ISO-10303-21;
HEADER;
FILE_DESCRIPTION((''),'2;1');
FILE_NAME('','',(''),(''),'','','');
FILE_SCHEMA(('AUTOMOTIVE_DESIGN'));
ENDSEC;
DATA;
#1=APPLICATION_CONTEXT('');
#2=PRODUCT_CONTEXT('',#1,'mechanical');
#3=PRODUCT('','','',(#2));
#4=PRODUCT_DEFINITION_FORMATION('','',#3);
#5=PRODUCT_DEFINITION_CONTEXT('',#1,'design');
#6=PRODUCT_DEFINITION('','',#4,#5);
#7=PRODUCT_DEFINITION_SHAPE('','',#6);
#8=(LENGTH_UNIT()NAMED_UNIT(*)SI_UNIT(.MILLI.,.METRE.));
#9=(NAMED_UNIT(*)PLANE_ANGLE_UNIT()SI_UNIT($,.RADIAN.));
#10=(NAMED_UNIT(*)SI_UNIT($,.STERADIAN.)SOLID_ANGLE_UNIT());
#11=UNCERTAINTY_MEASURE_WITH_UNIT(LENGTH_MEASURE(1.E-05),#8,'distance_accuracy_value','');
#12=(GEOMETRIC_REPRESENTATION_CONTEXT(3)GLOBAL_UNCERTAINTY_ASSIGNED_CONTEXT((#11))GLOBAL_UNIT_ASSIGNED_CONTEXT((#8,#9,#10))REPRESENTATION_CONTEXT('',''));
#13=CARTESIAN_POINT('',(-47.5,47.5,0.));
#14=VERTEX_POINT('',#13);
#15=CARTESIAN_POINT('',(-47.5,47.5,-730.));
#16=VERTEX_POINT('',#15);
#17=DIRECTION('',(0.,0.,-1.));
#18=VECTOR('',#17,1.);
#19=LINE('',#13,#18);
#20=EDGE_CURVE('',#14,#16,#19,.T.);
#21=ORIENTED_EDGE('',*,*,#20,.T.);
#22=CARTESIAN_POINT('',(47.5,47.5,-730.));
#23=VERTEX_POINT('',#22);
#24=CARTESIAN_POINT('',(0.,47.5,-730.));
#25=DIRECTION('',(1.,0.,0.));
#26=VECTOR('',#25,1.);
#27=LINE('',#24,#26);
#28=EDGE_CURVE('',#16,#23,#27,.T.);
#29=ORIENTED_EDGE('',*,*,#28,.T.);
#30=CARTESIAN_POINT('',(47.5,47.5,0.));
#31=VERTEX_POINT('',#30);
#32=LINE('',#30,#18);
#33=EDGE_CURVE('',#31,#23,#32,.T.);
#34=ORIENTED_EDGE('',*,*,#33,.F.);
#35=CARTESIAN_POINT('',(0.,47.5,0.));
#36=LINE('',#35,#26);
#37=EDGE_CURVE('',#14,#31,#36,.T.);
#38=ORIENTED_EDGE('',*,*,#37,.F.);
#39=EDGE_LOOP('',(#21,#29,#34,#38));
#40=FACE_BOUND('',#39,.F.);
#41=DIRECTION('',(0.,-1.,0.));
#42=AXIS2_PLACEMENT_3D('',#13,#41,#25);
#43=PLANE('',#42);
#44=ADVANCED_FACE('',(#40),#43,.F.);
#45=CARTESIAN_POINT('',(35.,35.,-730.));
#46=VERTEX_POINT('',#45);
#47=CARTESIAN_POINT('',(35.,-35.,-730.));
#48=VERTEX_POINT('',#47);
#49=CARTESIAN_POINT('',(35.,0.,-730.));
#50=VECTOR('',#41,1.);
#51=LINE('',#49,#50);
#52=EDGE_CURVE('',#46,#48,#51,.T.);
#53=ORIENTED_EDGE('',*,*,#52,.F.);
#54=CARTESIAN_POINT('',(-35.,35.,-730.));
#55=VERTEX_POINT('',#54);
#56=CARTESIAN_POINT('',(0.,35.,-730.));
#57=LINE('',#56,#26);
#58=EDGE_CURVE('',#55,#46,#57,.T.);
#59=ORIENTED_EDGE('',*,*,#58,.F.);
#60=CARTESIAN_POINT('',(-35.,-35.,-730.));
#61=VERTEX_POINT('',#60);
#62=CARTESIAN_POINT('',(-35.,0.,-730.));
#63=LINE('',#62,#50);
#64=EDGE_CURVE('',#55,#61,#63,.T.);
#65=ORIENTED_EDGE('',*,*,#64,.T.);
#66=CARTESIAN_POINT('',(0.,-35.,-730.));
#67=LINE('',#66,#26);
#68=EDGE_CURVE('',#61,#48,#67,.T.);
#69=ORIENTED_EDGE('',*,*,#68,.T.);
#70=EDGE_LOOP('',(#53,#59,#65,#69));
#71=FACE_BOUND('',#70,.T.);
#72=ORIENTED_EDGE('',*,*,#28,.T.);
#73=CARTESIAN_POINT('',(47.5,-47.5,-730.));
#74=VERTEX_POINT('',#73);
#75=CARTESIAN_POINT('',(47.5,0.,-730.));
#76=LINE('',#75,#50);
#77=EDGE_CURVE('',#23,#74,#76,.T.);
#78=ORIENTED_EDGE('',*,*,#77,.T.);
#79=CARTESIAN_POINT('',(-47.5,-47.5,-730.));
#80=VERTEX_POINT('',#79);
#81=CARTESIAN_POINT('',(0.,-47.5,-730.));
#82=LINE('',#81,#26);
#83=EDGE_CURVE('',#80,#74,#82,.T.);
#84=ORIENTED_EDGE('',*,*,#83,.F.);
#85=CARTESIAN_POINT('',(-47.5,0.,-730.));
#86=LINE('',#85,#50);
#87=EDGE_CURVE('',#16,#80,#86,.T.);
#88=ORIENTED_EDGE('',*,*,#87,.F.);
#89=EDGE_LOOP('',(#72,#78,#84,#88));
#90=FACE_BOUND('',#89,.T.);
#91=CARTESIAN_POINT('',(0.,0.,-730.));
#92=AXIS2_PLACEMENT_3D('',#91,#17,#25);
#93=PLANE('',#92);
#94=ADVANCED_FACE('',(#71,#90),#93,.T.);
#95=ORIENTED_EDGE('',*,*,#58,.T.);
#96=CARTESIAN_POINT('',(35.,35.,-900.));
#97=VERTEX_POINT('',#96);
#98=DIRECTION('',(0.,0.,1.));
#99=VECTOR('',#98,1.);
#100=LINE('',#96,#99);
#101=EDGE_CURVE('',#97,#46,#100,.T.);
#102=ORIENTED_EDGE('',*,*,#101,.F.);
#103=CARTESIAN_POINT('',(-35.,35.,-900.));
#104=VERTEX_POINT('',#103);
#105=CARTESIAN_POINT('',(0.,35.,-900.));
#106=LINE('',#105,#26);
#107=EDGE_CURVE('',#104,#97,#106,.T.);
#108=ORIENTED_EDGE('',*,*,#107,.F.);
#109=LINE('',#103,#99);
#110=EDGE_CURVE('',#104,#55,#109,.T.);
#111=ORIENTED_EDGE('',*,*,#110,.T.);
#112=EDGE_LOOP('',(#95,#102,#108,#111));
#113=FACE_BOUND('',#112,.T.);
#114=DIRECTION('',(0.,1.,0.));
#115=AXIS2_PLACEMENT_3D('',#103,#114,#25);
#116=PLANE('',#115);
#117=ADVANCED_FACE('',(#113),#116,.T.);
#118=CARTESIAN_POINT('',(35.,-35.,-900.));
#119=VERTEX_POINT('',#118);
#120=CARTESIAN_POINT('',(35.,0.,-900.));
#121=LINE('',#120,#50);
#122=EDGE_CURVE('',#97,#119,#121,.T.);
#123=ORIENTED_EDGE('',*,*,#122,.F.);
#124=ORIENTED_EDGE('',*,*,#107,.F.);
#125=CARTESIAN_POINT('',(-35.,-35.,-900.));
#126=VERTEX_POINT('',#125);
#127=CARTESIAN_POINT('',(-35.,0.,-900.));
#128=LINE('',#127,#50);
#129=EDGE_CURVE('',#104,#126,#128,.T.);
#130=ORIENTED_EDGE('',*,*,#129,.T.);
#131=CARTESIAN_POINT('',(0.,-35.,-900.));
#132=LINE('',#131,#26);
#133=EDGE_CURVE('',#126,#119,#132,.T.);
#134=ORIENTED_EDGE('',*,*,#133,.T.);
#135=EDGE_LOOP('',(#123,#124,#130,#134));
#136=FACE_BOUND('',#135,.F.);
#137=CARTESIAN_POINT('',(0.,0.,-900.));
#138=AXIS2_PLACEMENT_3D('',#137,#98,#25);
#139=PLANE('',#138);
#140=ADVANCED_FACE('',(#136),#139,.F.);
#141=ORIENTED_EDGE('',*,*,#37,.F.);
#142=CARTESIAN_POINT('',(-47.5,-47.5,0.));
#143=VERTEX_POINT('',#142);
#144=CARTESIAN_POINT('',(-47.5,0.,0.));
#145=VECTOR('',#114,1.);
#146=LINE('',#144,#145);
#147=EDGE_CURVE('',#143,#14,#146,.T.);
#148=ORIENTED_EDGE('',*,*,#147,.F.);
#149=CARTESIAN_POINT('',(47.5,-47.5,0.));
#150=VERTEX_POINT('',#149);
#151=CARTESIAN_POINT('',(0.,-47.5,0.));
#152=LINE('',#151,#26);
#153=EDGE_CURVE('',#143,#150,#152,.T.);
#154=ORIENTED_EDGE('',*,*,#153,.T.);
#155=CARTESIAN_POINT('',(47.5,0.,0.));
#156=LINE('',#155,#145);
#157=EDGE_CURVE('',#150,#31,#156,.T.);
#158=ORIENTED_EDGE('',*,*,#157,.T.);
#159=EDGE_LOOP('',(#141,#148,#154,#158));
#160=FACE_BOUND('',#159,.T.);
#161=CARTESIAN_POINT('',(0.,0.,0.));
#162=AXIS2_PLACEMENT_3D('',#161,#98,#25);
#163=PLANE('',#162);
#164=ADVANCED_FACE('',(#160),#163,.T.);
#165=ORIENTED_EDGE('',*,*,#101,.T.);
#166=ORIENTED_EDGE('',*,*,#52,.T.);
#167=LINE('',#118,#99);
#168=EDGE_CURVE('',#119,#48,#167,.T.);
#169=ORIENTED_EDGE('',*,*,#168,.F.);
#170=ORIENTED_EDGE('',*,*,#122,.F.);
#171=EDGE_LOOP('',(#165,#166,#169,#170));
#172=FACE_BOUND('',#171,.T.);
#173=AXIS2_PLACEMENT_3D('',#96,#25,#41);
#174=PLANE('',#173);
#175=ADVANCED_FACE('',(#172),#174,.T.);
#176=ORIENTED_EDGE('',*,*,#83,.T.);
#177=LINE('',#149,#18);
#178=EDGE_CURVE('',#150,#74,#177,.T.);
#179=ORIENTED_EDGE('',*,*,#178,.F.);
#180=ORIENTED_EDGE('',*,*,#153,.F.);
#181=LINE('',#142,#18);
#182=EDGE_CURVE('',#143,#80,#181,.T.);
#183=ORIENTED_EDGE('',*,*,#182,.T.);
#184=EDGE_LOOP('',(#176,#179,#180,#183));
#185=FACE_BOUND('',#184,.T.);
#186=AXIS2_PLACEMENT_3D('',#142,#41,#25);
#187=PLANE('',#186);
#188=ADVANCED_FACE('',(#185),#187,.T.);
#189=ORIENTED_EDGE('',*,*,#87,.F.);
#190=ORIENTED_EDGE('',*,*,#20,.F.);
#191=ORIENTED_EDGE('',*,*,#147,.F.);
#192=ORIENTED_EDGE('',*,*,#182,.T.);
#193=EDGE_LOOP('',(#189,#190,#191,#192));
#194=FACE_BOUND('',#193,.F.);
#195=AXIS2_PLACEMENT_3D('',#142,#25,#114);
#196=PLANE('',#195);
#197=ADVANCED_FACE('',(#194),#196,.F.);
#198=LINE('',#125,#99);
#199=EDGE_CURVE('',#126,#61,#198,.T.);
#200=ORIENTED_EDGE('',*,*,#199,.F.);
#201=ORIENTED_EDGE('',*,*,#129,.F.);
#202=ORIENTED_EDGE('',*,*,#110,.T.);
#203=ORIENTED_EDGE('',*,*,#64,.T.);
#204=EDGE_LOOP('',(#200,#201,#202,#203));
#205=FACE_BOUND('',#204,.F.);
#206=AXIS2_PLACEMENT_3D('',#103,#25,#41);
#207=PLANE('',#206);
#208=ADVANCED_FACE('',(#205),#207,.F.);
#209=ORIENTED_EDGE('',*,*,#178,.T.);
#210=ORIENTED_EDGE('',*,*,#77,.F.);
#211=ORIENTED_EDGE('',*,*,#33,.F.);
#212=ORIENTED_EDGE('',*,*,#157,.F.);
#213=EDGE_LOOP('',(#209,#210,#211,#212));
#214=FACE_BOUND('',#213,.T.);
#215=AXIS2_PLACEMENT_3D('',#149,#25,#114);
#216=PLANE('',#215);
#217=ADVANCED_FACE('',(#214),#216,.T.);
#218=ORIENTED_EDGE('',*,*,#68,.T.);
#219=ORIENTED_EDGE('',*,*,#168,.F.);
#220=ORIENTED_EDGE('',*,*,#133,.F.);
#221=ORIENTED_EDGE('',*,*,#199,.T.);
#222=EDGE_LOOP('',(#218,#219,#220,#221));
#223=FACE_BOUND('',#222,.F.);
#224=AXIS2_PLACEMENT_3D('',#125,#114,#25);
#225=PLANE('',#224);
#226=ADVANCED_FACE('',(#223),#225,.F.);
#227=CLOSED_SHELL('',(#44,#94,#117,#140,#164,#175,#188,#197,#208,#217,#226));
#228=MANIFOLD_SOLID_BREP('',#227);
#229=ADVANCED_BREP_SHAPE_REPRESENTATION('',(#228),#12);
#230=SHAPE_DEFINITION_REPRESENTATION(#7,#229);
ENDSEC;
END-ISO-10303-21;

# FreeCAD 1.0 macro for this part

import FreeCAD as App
import Part
import Sketcher

V = App.Vector
Q = App.Units.Quantity


def add_polygon(sketch, points):
    """Adds a closed chain of lines whose ends are joined by coincident constraints."""
    first, n = sketch.GeometryCount, len(points)
    for a, b in zip(points, points[1:] + points[:1]):
        sketch.addGeometry(Part.LineSegment(App.Vector(*a, 0), App.Vector(*b, 0)), False)
    for i in range(n):
        sketch.addConstraint(Sketcher.Constraint("Coincident", first + i, 2, first + (i + 1) % n, 1))

doc = App.newDocument("Part")
params = doc.addObject("Spreadsheet::Sheet", "Params")
for row, (alias, value) in enumerate([
    ("sketch1_width", "95 mm"),
    ("pad1_length", "900 mm"),
    ("sketch2_width", "95 mm"),
    ("sketch2_width2", "70 mm"),
    ("pocket1_length", "170 mm"),
], start=1):
    params.set(f"A{row}", alias)
    params.set(f"B{row}", "=" + value)
    params.setAlias(f"B{row}", alias)

body = doc.addObject("PartDesign::Body", "Body")

# Sketch on XY plane
sketch1 = body.newObject("Sketcher::SketchObject", "Sketch")
sketch1.AttachmentSupport = (doc.getObject("XY_Plane"), [""])
sketch1.MapMode = "FlatFace"
add_polygon(sketch1, [(-48, 48), (-48, -48), (48, -48), (48, 48)])  # lines 0-3
sketch1.addConstraint(Sketcher.Constraint("Vertical", 0))
sketch1.addConstraint(Sketcher.Constraint("Horizontal", 1))
sketch1.addConstraint(Sketcher.Constraint("Vertical", 2))
sketch1.addConstraint(Sketcher.Constraint("Horizontal", 3))
sketch1.addConstraint(Sketcher.Constraint("Symmetric", 0, 2, 2, 2, -1, 1))
sketch1.addConstraint(Sketcher.Constraint("Equal", 3, 0))
sketch1.addConstraint(Sketcher.Constraint("DistanceX", 1, 1, 1, 2, Q("95 mm")))
sketch1.setExpression("Constraints[10]", "Params.sketch1_width")
pad1 = body.newObject("PartDesign::Pad", "Pad")
pad1.Profile = sketch1
pad1.setExpression("Length", "Params.pad1_length")
pad1.Reversed = True

# Sketch on XY plane
sketch2 = body.newObject("Sketcher::SketchObject", "Sketch001")
sketch2.AttachmentSupport = (doc.getObject("XY_Plane"), [""])
sketch2.MapMode = "FlatFace"
sketch2.AttachmentOffset = App.Placement(V(0, 0, -900), App.Rotation())
add_polygon(sketch2, [(-48, -48), (-48, 48), (48, 48), (48, -48)])  # lines 0-3
add_polygon(sketch2, [(35, 35), (-35, 35), (-35, -35), (35, -35)])  # lines 4-7
sketch2.addConstraint(Sketcher.Constraint("Vertical", 0))
sketch2.addConstraint(Sketcher.Constraint("Horizontal", 1))
sketch2.addConstraint(Sketcher.Constraint("Vertical", 2))
sketch2.addConstraint(Sketcher.Constraint("Horizontal", 3))
sketch2.addConstraint(Sketcher.Constraint("Horizontal", 4))
sketch2.addConstraint(Sketcher.Constraint("Vertical", 5))
sketch2.addConstraint(Sketcher.Constraint("Horizontal", 6))
sketch2.addConstraint(Sketcher.Constraint("Vertical", 7))
sketch2.addConstraint(Sketcher.Constraint("Symmetric", 0, 2, 2, 2, -1, 1))
sketch2.addConstraint(Sketcher.Constraint("Symmetric", 4, 2, 6, 2, -1, 1))
sketch2.addConstraint(Sketcher.Constraint("Equal", 3, 0))
sketch2.addConstraint(Sketcher.Constraint("Equal", 6, 5))
sketch2.addConstraint(Sketcher.Constraint("DistanceX", 1, 1, 1, 2, Q("95 mm")))
sketch2.addConstraint(Sketcher.Constraint("DistanceX", 4, 2, 4, 1, Q("70 mm")))
sketch2.setExpression("Constraints[20]", "Params.sketch2_width")
sketch2.setExpression("Constraints[21]", "Params.sketch2_width2")
pocket1 = body.newObject("PartDesign::Pocket", "Pocket")
pocket1.Profile = sketch2
pocket1.setExpression("Length", "Params.pocket1_length")
pocket1.Reversed = True

doc.recompute()
